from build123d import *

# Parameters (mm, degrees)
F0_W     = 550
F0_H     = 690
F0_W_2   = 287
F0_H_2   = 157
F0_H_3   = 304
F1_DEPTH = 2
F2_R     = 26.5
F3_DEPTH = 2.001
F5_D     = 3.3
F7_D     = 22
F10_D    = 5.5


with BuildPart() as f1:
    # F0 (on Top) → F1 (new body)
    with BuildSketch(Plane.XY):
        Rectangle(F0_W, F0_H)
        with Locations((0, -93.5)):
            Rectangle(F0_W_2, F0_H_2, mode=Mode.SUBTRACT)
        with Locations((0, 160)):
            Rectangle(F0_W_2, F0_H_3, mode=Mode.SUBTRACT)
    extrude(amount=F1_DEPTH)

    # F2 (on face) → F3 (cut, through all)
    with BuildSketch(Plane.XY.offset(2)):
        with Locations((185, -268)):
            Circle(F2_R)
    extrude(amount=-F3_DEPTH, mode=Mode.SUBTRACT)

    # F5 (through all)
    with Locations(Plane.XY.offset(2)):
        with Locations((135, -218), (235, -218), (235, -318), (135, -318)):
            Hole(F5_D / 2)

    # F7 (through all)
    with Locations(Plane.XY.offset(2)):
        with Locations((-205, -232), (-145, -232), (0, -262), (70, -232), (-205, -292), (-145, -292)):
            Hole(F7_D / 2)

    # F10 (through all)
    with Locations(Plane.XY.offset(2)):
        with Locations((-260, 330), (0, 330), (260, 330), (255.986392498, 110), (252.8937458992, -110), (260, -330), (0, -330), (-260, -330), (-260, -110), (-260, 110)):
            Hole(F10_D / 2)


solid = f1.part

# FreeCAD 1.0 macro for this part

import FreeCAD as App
import Part
import Sketcher
from FreeCAD import Vector

doc = App.newDocument("Part")
body = doc.addObject("PartDesign::Body", "Body")

# Sketch on XY plane
sketch1 = body.newObject("Sketcher::SketchObject", "Sketch")
sketch1.AttachmentSupport = (doc.getObject("XY_Plane"), [""])
sketch1.MapMode = "FlatFace"
sketch1.addGeometry([
    Part.LineSegment(Vector(-275, 345, 0), Vector(-275, -345, 0)),  # 0
    Part.LineSegment(Vector(-275, -345, 0), Vector(275, -345, 0)),  # 1
    Part.LineSegment(Vector(275, -345, 0), Vector(275, 345, 0)),  # 2
    Part.LineSegment(Vector(275, 345, 0), Vector(-275, 345, 0)),  # 3
    Part.LineSegment(Vector(144, -172, 0), Vector(-144, -172, 0)),  # 4
    Part.LineSegment(Vector(-144, -172, 0), Vector(-144, -15, 0)),  # 5
    Part.LineSegment(Vector(-144, -15, 0), Vector(144, -15, 0)),  # 6
    Part.LineSegment(Vector(144, -15, 0), Vector(144, -172, 0)),  # 7
    Part.LineSegment(Vector(144, 8, 0), Vector(-144, 8, 0)),  # 8
    Part.LineSegment(Vector(-144, 8, 0), Vector(-144, 312, 0)),  # 9
    Part.LineSegment(Vector(-144, 312, 0), Vector(144, 312, 0)),  # 10
    Part.LineSegment(Vector(144, 312, 0), Vector(144, 8, 0)),  # 11
], False)
sketch1.addConstraint([
    Sketcher.Constraint("Coincident", 0, 2, 1, 1),
    Sketcher.Constraint("Coincident", 1, 2, 2, 1),
    Sketcher.Constraint("Coincident", 2, 2, 3, 1),
    Sketcher.Constraint("Coincident", 3, 2, 0, 1),
    Sketcher.Constraint("Coincident", 4, 2, 5, 1),
    Sketcher.Constraint("Coincident", 5, 2, 6, 1),
    Sketcher.Constraint("Coincident", 6, 2, 7, 1),
    Sketcher.Constraint("Coincident", 7, 2, 4, 1),
    Sketcher.Constraint("Coincident", 8, 2, 9, 1),
    Sketcher.Constraint("Coincident", 9, 2, 10, 1),
    Sketcher.Constraint("Coincident", 10, 2, 11, 1),
    Sketcher.Constraint("Coincident", 11, 2, 8, 1),
    Sketcher.Constraint("Vertical", 0),
    Sketcher.Constraint("Horizontal", 1),
    Sketcher.Constraint("Vertical", 2),
    Sketcher.Constraint("Horizontal", 3),
    Sketcher.Constraint("Horizontal", 4),
    Sketcher.Constraint("Vertical", 5),
    Sketcher.Constraint("Horizontal", 6),
    Sketcher.Constraint("Vertical", 7),
    Sketcher.Constraint("Horizontal", 8),
    Sketcher.Constraint("Vertical", 9),
    Sketcher.Constraint("Horizontal", 10),
    Sketcher.Constraint("Vertical", 11),
    Sketcher.Constraint("Symmetric", 0, 2, 2, 2, -1, 1),
    Sketcher.Constraint("Vertical", 5, 2, 8, 2),
    Sketcher.Constraint("Vertical", 7, 2, 10, 2),
    Sketcher.Constraint("DistanceX", 1, 1, 1, 2, 550.0),
    Sketcher.Constraint("DistanceX", 4, 2, 4, 1, 287.0),
    Sketcher.Constraint("DistanceY", 0, 2, 0, 1, 690.0),
    Sketcher.Constraint("DistanceY", 5, 1, 5, 2, 157.0),
    Sketcher.Constraint("DistanceY", 9, 1, 9, 2, 304.0),
    Sketcher.Constraint("DistanceY", 4, 2, -1, 1, 172.0),
    Sketcher.Constraint("DistanceY", -1, 1, 8, 2, 8.0),
    Sketcher.Constraint("DistanceX", 4, 2, -1, 1, 143.5),
])
pad1 = body.newObject("PartDesign::Pad", "Pad")
pad1.Profile = sketch1
pad1.Length = 2

# Sketch on XY plane
sketch2 = body.newObject("Sketcher::SketchObject", "Sketch001")
sketch2.AttachmentSupport = (doc.getObject("XY_Plane"), [""])
sketch2.MapMode = "FlatFace"
sketch2.AttachmentOffset = App.Placement(Vector(0, 0, 2), App.Rotation())
sketch2.addGeometry(Part.Circle(Vector(185, -268, 0), Vector(0, 0, 1), 26), False)
sketch2.addConstraint([
    Sketcher.Constraint("Diameter", 0, 53.0),
    Sketcher.Constraint("DistanceX", -1, 1, 0, 3, 185.0),
    Sketcher.Constraint("DistanceY", 0, 3, -1, 1, 268.0),
])
pocket1 = body.newObject("PartDesign::Pocket", "Pocket")
pocket1.Profile = sketch2
pocket1.Type = "ThroughAll"

# Sketch on XY plane
sketch3 = body.newObject("Sketcher::SketchObject", "Sketch002")
sketch3.AttachmentSupport = (doc.getObject("XY_Plane"), [""])
sketch3.MapMode = "FlatFace"
sketch3.AttachmentOffset = App.Placement(Vector(0, 0, 2), App.Rotation())
sketch3.addGeometry([
    Part.Circle(Vector(135, -218, 0), Vector(0, 0, 1), 1.6),
    Part.Circle(Vector(235, -218, 0), Vector(0, 0, 1), 1.6),
    Part.Circle(Vector(235, -318, 0), Vector(0, 0, 1), 1.6),
    Part.Circle(Vector(135, -318, 0), Vector(0, 0, 1), 1.6),
], False)
sketch3.addConstraint([
    Sketcher.Constraint("Equal", 0, 1),
    Sketcher.Constraint("Equal", 1, 2),
    Sketcher.Constraint("Equal", 2, 3),
    Sketcher.Constraint("Horizontal", 0, 3, 1, 3),
    Sketcher.Constraint("Horizontal", 2, 3, 3, 3),
    Sketcher.Constraint("Vertical", 1, 3, 2, 3),
    Sketcher.Constraint("Vertical", 0, 3, 3, 3),
    Sketcher.Constraint("Diameter", 0, 3.3),
    Sketcher.Constraint("DistanceX", -1, 1, 0, 3, 135.0),
    Sketcher.Constraint("DistanceY", 0, 3, -1, 1, 218.0),
    Sketcher.Constraint("DistanceX", -1, 1, 1, 3, 235.0),
    Sketcher.Constraint("DistanceY", 2, 3, -1, 1, 318.0),
])
doc.recompute()
hole = body.newObject("PartDesign::Hole", "Hole")
hole.Profile = sketch3
hole.ThreadType = "None"
hole.Diameter = 3.3
hole.DepthType = "ThroughAll"

# Sketch on XY plane
sketch4 = body.newObject("Sketcher::SketchObject", "Sketch003")
sketch4.AttachmentSupport = (doc.getObject("XY_Plane"), [""])
sketch4.MapMode = "FlatFace"
sketch4.AttachmentOffset = App.Placement(Vector(0, 0, 2), App.Rotation())
sketch4.addGeometry([
    Part.Circle(Vector(-205, -232, 0), Vector(0, 0, 1), 11),  # 0
    Part.Circle(Vector(-145, -232, 0), Vector(0, 0, 1), 11),  # 1
    Part.Circle(Vector(0, -262, 0), Vector(0, 0, 1), 11),  # 2
    Part.Circle(Vector(70, -232, 0), Vector(0, 0, 1), 11),  # 3
    Part.Circle(Vector(-205, -292, 0), Vector(0, 0, 1), 11),  # 4
    Part.Circle(Vector(-145, -292, 0), Vector(0, 0, 1), 11),  # 5
], False)
sketch4.addConstraint([
    Sketcher.Constraint("Equal", 0, 1),
    Sketcher.Constraint("Equal", 1, 2),
    Sketcher.Constraint("Equal", 2, 3),
    Sketcher.Constraint("Equal", 3, 4),
    Sketcher.Constraint("Equal", 4, 5),
    Sketcher.Constraint("PointOnObject", 2, 3, -2),
    Sketcher.Constraint("Horizontal", 0, 3, 1, 3),
    Sketcher.Constraint("Horizontal", 1, 3, 3, 3),
    Sketcher.Constraint("Horizontal", 4, 3, 5, 3),
    Sketcher.Constraint("Vertical", 0, 3, 4, 3),
    Sketcher.Constraint("Vertical", 1, 3, 5, 3),
    Sketcher.Constraint("Diameter", 0, 22.0),
    Sketcher.Constraint("DistanceX", 0, 3, -1, 1, 205.0),
    Sketcher.Constraint("DistanceY", 0, 3, -1, 1, 232.0),
    Sketcher.Constraint("DistanceX", 1, 3, -1, 1, 145.0),
    Sketcher.Constraint("DistanceY", 2, 3, -1, 1, 262.0),
    Sketcher.Constraint("DistanceX", -1, 1, 3, 3, 70.0),
    Sketcher.Constraint("DistanceY", 4, 3, -1, 1, 292.0),
])
doc.recompute()
hole2 = body.newObject("PartDesign::Hole", "Hole001")
hole2.Profile = sketch4
hole2.ThreadType = "None"
hole2.Diameter = 22
hole2.DepthType = "ThroughAll"

# Sketch on XY plane
sketch5 = body.newObject("Sketcher::SketchObject", "Sketch004")
sketch5.AttachmentSupport = (doc.getObject("XY_Plane"), [""])
sketch5.MapMode = "FlatFace"
sketch5.AttachmentOffset = App.Placement(Vector(0, 0, 2), App.Rotation())
sketch5.addGeometry([
    Part.Circle(Vector(-260, 330, 0), Vector(0, 0, 1), 2.8),  # 0
    Part.Circle(Vector(0, 330, 0), Vector(0, 0, 1), 2.8),  # 1
    Part.Circle(Vector(260, 330, 0), Vector(0, 0, 1), 2.8),  # 2
    Part.Circle(Vector(256, 110, 0), Vector(0, 0, 1), 2.8),  # 3
    Part.Circle(Vector(252.9, -110, 0), Vector(0, 0, 1), 2.8),  # 4
    Part.Circle(Vector(260, -330, 0), Vector(0, 0, 1), 2.8),  # 5
    Part.Circle(Vector(0, -330, 0), Vector(0, 0, 1), 2.8),  # 6
    Part.Circle(Vector(-260, -330, 0), Vector(0, 0, 1), 2.8),  # 7
    Part.Circle(Vector(-260, -110, 0), Vector(0, 0, 1), 2.8),  # 8
    Part.Circle(Vector(-260, 110, 0), Vector(0, 0, 1), 2.8),  # 9
], False)
sketch5.addConstraint([
    Sketcher.Constraint("Equal", 0, 1),
    Sketcher.Constraint("Equal", 1, 2),
    Sketcher.Constraint("Equal", 2, 3),
    Sketcher.Constraint("Equal", 3, 4),
    Sketcher.Constraint("Equal", 4, 5),
    Sketcher.Constraint("Equal", 5, 6),
    Sketcher.Constraint("Equal", 6, 7),
    Sketcher.Constraint("Equal", 7, 8),
    Sketcher.Constraint("Equal", 8, 9),
    Sketcher.Constraint("Symmetric", 0, 3, 5, 3, -1, 1),
    Sketcher.Constraint("Symmetric", 1, 3, 6, 3, -1, 1),
    Sketcher.Constraint("Symmetric", 2, 3, 7, 3, -1, 1),
    Sketcher.Constraint("Symmetric", 0, 3, 2, 3, -2),
    Sketcher.Constraint("Symmetric", 8, 3, 9, 3, -1),
    Sketcher.Constraint("PointOnObject", 1, 3, -2),
    Sketcher.Constraint("Horizontal", 0, 3, 1, 3),
    Sketcher.Constraint("Horizontal", 4, 3, 8, 3),
    Sketcher.Constraint("Horizontal", 3, 3, 9, 3),
    Sketcher.Constraint("Vertical", 7, 3, 8, 3),
    Sketcher.Constraint("Diameter", 0, 5.5),
    Sketcher.Constraint("DistanceX", 0, 3, -1, 1, 260.0),
    Sketcher.Constraint("DistanceY", -1, 1, 0, 3, 330.0),
    Sketcher.Constraint("DistanceY", -1, 1, 3, 3, 110.0),
    Sketcher.Constraint("DistanceX", -1, 1, 3, 3, 255.986392),
    Sketcher.Constraint("DistanceX", -1, 1, 4, 3, 252.893746),
])
doc.recompute()
hole3 = body.newObject("PartDesign::Hole", "Hole002")
hole3.Profile = sketch5
hole3.ThreadType = "None"
hole3.Diameter = 5.5
hole3.DepthType = "ThroughAll"

doc.recompute()
